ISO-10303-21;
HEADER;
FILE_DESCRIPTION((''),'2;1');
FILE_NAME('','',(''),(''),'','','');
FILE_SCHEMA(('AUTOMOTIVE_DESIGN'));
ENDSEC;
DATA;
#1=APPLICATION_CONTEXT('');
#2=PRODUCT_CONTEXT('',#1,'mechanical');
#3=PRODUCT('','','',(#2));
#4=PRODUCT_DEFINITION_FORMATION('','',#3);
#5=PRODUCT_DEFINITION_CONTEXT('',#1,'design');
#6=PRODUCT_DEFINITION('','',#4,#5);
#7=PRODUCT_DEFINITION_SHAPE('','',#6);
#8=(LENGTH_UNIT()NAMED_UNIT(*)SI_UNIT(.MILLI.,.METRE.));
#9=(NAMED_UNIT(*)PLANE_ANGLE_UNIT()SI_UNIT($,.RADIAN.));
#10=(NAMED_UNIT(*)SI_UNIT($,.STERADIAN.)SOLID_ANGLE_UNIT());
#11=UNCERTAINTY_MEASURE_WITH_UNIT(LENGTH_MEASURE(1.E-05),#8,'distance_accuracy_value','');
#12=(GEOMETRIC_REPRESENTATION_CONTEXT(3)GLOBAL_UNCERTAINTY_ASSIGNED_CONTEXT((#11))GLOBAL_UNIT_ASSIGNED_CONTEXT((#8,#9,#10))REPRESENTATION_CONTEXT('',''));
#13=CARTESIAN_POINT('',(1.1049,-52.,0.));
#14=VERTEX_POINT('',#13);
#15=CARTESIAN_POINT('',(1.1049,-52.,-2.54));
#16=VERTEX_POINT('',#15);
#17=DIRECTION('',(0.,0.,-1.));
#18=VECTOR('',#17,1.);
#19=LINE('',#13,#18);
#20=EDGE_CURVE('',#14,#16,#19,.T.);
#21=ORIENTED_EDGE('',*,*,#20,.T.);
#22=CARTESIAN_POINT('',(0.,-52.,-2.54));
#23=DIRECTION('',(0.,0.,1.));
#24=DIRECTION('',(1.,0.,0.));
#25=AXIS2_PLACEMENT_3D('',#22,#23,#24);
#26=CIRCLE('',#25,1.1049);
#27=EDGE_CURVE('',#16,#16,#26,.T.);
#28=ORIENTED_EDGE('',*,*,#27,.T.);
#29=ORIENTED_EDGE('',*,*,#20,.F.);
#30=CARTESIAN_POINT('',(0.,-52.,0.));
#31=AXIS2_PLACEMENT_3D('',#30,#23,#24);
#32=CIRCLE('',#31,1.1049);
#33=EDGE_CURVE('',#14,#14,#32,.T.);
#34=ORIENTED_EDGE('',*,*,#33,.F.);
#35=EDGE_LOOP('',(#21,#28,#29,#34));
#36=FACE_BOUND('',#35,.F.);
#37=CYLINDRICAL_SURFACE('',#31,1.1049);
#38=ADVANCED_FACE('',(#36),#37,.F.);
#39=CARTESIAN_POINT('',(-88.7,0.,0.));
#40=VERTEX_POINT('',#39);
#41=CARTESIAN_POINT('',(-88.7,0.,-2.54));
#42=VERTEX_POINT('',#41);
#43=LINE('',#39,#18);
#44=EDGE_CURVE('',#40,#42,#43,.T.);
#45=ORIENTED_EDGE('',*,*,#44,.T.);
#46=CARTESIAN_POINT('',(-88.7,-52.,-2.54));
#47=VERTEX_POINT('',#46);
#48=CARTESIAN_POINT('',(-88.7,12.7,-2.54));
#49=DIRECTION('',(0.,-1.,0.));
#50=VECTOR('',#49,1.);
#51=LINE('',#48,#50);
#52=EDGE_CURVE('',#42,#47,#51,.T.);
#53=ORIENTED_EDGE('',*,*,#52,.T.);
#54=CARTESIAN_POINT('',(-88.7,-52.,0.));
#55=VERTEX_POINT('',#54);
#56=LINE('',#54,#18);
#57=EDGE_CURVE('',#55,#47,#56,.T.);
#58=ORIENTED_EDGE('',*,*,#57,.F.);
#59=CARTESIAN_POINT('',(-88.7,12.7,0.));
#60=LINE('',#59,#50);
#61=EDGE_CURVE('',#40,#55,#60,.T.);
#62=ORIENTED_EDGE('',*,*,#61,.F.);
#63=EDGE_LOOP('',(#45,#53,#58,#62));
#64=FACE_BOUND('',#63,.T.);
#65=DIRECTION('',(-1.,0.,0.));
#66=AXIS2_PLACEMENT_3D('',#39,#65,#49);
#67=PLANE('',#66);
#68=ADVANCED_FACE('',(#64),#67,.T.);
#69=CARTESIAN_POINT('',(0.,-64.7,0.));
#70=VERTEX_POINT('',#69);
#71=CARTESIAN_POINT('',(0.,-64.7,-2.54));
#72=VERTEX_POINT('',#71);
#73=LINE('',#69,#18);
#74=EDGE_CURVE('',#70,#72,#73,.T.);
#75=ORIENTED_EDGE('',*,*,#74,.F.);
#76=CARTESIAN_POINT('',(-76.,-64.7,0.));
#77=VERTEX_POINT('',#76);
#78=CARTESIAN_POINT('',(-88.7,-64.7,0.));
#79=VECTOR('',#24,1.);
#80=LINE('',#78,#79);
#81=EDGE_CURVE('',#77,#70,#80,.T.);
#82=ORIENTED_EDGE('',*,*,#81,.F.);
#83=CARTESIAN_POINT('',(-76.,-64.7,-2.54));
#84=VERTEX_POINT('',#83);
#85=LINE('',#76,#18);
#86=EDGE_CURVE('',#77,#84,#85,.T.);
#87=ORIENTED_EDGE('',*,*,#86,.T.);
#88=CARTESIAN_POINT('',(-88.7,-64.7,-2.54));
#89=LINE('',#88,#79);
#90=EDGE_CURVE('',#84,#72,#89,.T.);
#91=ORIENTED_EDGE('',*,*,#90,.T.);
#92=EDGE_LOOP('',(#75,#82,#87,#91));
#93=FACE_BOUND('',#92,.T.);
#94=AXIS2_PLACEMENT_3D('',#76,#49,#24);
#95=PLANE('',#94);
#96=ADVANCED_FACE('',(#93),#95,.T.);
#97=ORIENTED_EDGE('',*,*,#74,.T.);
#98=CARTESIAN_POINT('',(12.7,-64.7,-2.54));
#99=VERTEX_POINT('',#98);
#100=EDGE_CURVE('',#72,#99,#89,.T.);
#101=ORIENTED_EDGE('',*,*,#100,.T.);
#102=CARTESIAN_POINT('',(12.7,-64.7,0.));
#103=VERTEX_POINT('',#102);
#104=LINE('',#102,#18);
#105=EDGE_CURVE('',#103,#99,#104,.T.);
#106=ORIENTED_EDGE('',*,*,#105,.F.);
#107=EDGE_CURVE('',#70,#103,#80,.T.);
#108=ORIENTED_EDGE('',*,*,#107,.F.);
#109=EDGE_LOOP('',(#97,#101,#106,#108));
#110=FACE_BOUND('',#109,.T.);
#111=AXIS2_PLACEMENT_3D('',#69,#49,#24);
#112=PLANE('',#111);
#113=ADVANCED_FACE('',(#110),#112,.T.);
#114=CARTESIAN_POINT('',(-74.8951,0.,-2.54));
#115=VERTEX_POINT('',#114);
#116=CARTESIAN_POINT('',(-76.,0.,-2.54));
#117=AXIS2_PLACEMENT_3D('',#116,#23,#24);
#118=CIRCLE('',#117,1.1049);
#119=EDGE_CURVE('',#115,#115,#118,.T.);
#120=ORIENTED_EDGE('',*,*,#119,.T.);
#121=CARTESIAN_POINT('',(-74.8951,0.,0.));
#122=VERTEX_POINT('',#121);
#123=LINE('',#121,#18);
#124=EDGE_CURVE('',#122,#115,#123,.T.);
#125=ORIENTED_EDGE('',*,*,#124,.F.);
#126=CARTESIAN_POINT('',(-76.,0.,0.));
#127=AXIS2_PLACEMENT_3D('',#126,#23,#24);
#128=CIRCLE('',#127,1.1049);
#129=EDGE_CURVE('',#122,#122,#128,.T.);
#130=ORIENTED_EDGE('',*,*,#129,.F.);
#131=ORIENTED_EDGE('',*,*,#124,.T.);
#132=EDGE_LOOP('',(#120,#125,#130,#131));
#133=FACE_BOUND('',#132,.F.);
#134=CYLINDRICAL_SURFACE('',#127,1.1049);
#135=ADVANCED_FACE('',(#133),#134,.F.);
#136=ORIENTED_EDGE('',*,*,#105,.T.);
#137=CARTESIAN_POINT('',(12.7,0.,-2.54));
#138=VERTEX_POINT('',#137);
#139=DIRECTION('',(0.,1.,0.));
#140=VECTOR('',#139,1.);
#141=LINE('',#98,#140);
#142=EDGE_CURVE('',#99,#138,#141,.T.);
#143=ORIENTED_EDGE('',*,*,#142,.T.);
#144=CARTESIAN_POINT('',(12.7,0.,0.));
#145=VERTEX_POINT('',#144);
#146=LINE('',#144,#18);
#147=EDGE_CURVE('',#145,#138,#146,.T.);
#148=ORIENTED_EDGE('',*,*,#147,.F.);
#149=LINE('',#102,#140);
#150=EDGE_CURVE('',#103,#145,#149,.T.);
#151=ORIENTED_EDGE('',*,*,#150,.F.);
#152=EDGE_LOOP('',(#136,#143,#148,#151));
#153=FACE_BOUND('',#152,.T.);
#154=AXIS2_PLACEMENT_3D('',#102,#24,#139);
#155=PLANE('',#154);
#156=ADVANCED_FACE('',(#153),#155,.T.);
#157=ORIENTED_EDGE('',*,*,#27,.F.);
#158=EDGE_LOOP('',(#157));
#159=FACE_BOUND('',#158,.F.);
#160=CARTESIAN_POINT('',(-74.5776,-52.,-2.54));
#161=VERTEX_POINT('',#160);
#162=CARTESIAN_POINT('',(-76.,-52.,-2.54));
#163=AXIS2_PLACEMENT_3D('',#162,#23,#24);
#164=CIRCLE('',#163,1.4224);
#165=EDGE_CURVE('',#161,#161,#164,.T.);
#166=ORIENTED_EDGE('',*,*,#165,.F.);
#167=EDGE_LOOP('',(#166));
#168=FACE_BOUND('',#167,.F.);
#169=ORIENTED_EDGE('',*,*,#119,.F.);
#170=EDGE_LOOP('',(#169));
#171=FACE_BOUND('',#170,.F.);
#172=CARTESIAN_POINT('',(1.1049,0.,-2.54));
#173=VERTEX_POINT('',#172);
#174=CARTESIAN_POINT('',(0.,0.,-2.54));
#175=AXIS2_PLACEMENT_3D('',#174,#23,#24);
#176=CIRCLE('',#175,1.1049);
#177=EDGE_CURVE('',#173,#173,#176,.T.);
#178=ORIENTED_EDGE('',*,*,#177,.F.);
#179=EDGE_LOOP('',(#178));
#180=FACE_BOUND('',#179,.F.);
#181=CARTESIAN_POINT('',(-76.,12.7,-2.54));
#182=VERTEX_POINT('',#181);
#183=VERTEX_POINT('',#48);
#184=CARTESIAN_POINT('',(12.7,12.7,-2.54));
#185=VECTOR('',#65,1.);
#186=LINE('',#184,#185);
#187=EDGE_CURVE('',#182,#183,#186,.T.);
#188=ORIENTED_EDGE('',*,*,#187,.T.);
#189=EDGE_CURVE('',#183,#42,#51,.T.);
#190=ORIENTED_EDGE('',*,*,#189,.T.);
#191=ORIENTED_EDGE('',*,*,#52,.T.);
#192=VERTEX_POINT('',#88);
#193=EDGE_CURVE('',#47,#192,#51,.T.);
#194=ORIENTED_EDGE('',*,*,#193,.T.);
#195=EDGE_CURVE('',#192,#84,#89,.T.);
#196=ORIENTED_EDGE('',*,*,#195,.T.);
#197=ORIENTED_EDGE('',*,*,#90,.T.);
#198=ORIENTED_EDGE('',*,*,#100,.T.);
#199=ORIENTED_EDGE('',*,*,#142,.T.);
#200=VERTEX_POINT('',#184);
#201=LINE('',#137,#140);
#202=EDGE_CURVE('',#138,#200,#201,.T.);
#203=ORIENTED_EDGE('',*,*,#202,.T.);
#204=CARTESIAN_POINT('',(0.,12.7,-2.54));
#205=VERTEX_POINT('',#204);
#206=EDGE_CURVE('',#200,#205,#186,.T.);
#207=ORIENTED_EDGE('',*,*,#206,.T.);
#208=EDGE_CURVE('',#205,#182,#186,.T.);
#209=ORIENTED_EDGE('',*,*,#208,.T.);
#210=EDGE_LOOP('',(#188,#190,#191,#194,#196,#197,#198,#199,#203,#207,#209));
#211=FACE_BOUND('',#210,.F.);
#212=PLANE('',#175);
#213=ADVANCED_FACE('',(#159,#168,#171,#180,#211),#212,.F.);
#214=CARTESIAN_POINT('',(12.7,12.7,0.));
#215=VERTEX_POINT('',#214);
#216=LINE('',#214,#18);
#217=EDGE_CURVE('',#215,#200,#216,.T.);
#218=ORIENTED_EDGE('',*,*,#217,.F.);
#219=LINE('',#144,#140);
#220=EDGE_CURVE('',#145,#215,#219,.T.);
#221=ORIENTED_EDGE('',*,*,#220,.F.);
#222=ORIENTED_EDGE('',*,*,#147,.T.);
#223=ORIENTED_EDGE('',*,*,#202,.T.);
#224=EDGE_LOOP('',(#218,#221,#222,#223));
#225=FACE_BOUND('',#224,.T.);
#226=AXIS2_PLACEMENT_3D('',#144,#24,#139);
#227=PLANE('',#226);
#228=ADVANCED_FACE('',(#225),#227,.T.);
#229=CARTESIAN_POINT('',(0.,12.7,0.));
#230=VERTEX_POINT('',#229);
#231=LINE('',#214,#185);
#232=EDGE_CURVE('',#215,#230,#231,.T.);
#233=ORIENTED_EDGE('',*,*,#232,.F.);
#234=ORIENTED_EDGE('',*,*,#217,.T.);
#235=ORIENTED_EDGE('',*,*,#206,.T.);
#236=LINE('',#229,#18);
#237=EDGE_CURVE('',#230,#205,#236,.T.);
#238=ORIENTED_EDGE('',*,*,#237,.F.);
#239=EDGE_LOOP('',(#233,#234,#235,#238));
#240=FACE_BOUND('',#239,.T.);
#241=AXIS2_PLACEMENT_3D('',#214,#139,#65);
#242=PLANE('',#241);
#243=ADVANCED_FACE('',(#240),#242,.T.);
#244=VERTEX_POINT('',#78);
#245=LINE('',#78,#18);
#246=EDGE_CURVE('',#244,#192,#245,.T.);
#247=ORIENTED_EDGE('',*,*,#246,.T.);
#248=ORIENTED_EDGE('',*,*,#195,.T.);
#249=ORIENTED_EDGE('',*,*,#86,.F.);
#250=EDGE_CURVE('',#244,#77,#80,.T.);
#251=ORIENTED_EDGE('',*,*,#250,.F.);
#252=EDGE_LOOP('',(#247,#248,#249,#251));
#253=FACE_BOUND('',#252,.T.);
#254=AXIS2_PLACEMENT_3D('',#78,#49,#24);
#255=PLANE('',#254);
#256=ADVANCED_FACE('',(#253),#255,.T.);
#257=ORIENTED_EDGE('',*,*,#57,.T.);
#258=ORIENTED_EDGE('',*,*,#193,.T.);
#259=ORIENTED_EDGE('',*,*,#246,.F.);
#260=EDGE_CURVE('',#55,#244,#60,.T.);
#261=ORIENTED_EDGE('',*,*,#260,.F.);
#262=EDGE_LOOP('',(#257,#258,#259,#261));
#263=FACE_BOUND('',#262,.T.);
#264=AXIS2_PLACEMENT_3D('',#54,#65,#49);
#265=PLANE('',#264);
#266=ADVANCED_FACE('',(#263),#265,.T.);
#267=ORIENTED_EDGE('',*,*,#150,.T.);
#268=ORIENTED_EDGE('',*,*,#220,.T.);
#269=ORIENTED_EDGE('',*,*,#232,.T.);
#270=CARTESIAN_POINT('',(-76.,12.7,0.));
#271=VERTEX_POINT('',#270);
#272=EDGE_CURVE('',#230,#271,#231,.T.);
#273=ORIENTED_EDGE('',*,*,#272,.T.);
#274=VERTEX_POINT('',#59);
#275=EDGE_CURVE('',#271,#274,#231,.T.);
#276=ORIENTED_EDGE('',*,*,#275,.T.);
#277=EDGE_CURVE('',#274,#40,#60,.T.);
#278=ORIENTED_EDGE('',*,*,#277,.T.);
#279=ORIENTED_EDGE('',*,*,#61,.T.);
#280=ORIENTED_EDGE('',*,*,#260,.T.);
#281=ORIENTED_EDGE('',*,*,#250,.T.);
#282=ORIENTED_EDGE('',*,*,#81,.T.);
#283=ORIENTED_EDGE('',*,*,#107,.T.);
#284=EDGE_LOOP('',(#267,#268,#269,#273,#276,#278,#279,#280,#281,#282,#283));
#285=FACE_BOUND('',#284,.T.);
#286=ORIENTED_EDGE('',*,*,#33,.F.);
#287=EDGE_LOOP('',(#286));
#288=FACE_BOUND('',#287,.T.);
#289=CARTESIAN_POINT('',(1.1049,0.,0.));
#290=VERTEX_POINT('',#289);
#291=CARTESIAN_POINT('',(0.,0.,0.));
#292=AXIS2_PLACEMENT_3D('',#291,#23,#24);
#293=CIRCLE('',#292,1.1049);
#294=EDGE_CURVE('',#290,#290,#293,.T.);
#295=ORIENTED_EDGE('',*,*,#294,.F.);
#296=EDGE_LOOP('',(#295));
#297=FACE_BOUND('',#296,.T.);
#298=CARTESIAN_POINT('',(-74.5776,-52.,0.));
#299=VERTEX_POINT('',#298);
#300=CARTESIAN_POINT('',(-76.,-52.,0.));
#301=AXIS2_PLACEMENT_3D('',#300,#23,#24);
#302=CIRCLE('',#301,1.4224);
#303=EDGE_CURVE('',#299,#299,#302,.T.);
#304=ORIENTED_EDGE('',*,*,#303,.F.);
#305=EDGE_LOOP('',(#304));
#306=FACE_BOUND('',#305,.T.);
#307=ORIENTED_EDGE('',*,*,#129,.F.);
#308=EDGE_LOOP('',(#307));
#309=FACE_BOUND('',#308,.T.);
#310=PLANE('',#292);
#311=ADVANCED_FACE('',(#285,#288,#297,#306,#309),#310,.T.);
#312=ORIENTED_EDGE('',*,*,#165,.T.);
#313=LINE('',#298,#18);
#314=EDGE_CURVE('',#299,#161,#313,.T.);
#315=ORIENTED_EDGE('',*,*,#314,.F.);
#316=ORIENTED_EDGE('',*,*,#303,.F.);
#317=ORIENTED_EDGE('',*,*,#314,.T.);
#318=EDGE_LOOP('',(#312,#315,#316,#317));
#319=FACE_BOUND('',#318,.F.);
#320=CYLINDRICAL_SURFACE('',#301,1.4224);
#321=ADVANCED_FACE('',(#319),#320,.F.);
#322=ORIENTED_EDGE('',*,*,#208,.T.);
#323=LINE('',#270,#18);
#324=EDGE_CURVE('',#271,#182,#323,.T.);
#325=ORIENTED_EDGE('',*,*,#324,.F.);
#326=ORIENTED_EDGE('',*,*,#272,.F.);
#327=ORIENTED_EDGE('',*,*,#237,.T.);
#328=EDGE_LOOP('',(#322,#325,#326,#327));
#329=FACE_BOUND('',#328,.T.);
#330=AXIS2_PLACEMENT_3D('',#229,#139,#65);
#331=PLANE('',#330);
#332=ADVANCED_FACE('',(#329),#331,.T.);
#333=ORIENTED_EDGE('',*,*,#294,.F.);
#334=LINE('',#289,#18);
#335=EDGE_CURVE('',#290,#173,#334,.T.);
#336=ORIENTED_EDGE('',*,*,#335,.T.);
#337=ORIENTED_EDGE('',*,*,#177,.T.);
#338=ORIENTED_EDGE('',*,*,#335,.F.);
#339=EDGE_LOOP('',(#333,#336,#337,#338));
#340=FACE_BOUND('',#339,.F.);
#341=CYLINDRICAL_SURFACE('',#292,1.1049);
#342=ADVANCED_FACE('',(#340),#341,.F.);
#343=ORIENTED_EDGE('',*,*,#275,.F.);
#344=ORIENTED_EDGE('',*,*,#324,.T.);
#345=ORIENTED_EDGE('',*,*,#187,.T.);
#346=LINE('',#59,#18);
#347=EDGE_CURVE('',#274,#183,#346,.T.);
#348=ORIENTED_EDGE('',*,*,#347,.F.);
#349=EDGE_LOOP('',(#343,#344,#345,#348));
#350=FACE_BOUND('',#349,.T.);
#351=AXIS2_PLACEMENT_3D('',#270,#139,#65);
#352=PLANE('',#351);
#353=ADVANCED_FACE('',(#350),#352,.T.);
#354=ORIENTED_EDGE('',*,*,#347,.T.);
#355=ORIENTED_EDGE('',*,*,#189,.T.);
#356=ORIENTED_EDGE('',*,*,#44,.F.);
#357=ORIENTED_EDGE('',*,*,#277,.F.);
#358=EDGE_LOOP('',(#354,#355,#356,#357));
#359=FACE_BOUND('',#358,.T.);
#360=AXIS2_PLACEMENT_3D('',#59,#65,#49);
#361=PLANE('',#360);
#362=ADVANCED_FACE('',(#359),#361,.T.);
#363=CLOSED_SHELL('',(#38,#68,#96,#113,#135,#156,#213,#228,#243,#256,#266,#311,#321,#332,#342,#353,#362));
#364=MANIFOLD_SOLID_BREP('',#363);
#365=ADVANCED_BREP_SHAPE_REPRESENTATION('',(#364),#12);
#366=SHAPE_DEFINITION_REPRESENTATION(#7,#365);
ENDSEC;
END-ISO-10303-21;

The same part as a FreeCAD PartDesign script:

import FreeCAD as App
import Part
import Sketcher

V = App.Vector
Q = App.Units.Quantity

doc = App.newDocument("Part")
body = doc.addObject("PartDesign::Body", "Body")

sketch1 = body.newObject("Sketcher::SketchObject", "Sketch")
sketch1.AttachmentSupport = (doc.getObject("XY_Plane"), [""])
sketch1.MapMode = "FlatFace"
sketch1.addGeometry(Part.LineSegment(V(12.7, -64.7, 0), V(12.7, 12.7, 0)), False)
sketch1.addGeometry(Part.LineSegment(V(12.7, 12.7, 0), V(-88.7, 12.7, 0)), False)
sketch1.addGeometry(Part.LineSegment(V(-88.7, 12.7, 0), V(-88.7, -64.7, 0)), False)
sketch1.addGeometry(Part.LineSegment(V(-88.7, -64.7, 0), V(12.7, -64.7, 0)), False)
sketch1.addGeometry(Part.Circle(V(-76, -52, 0), V(0, 0, 1), 1.4), False)
sketch1.addGeometry(Part.Circle(V(0, -52, 0), V(0, 0, 1), 1.1), False)
sketch1.addGeometry(Part.Circle(V(-76, 0, 0), V(0, 0, 1), 1.1), False)
sketch1.addGeometry(Part.Circle(V(0, 0, 0), V(0, 0, 1), 1.1), False)
sketch1.addConstraint(Sketcher.Constraint("Coincident", 0, 2, 1, 1))
sketch1.addConstraint(Sketcher.Constraint("Coincident", 1, 2, 2, 1))
sketch1.addConstraint(Sketcher.Constraint("Coincident", 2, 2, 3, 1))
sketch1.addConstraint(Sketcher.Constraint("Coincident", 3, 2, 0, 1))
sketch1.addConstraint(Sketcher.Constraint("Vertical", 0))
sketch1.addConstraint(Sketcher.Constraint("Horizontal", 1))
sketch1.addConstraint(Sketcher.Constraint("Vertical", 2))
sketch1.addConstraint(Sketcher.Constraint("Horizontal", 3))
sketch1.addConstraint(Sketcher.Constraint("Coincident", 7, 3, -1, 1))
sketch1.addConstraint(Sketcher.Constraint("Equal", 5, 6))
sketch1.addConstraint(Sketcher.Constraint("Equal", 6, 7))
sketch1.addConstraint(Sketcher.Constraint("PointOnObject", 5, 3, -2))
sketch1.addConstraint(Sketcher.Constraint("PointOnObject", 6, 3, -1))
sketch1.addConstraint(Sketcher.Constraint("Horizontal", 4, 3, 5, 3))
sketch1.addConstraint(Sketcher.Constraint("Vertical", 4, 3, 6, 3))
sketch1.addConstraint(Sketcher.Constraint("Diameter", 5, Q("0.087 in")))
sketch1.addConstraint(Sketcher.Constraint("DistanceX", -1, 1, 0, 2, Q("0.5 in")))
sketch1.addConstraint(Sketcher.Constraint("DistanceY", -1, 1, 0, 2, Q("0.5 in")))
sketch1.addConstraint(Sketcher.Constraint("DistanceX", 1, 2, 6, 3, Q("0.5 in")))
sketch1.addConstraint(Sketcher.Constraint("DistanceY", 2, 2, 4, 3, Q("0.5 in")))
sketch1.addConstraint(Sketcher.Constraint("Diameter", 4, Q("0.112 in")))
sketch1.addConstraint(Sketcher.Constraint("DistanceX", 1, 2, 1, 1, 101.4))
sketch1.addConstraint(Sketcher.Constraint("DistanceY", 0, 1, 0, 2, 77.4))
pad1 = body.newObject("PartDesign::Pad", "Pad")
pad1.Profile = sketch1
pad1.Length = Q("0.1 in")
pad1.Reversed = True

doc.recompute()
